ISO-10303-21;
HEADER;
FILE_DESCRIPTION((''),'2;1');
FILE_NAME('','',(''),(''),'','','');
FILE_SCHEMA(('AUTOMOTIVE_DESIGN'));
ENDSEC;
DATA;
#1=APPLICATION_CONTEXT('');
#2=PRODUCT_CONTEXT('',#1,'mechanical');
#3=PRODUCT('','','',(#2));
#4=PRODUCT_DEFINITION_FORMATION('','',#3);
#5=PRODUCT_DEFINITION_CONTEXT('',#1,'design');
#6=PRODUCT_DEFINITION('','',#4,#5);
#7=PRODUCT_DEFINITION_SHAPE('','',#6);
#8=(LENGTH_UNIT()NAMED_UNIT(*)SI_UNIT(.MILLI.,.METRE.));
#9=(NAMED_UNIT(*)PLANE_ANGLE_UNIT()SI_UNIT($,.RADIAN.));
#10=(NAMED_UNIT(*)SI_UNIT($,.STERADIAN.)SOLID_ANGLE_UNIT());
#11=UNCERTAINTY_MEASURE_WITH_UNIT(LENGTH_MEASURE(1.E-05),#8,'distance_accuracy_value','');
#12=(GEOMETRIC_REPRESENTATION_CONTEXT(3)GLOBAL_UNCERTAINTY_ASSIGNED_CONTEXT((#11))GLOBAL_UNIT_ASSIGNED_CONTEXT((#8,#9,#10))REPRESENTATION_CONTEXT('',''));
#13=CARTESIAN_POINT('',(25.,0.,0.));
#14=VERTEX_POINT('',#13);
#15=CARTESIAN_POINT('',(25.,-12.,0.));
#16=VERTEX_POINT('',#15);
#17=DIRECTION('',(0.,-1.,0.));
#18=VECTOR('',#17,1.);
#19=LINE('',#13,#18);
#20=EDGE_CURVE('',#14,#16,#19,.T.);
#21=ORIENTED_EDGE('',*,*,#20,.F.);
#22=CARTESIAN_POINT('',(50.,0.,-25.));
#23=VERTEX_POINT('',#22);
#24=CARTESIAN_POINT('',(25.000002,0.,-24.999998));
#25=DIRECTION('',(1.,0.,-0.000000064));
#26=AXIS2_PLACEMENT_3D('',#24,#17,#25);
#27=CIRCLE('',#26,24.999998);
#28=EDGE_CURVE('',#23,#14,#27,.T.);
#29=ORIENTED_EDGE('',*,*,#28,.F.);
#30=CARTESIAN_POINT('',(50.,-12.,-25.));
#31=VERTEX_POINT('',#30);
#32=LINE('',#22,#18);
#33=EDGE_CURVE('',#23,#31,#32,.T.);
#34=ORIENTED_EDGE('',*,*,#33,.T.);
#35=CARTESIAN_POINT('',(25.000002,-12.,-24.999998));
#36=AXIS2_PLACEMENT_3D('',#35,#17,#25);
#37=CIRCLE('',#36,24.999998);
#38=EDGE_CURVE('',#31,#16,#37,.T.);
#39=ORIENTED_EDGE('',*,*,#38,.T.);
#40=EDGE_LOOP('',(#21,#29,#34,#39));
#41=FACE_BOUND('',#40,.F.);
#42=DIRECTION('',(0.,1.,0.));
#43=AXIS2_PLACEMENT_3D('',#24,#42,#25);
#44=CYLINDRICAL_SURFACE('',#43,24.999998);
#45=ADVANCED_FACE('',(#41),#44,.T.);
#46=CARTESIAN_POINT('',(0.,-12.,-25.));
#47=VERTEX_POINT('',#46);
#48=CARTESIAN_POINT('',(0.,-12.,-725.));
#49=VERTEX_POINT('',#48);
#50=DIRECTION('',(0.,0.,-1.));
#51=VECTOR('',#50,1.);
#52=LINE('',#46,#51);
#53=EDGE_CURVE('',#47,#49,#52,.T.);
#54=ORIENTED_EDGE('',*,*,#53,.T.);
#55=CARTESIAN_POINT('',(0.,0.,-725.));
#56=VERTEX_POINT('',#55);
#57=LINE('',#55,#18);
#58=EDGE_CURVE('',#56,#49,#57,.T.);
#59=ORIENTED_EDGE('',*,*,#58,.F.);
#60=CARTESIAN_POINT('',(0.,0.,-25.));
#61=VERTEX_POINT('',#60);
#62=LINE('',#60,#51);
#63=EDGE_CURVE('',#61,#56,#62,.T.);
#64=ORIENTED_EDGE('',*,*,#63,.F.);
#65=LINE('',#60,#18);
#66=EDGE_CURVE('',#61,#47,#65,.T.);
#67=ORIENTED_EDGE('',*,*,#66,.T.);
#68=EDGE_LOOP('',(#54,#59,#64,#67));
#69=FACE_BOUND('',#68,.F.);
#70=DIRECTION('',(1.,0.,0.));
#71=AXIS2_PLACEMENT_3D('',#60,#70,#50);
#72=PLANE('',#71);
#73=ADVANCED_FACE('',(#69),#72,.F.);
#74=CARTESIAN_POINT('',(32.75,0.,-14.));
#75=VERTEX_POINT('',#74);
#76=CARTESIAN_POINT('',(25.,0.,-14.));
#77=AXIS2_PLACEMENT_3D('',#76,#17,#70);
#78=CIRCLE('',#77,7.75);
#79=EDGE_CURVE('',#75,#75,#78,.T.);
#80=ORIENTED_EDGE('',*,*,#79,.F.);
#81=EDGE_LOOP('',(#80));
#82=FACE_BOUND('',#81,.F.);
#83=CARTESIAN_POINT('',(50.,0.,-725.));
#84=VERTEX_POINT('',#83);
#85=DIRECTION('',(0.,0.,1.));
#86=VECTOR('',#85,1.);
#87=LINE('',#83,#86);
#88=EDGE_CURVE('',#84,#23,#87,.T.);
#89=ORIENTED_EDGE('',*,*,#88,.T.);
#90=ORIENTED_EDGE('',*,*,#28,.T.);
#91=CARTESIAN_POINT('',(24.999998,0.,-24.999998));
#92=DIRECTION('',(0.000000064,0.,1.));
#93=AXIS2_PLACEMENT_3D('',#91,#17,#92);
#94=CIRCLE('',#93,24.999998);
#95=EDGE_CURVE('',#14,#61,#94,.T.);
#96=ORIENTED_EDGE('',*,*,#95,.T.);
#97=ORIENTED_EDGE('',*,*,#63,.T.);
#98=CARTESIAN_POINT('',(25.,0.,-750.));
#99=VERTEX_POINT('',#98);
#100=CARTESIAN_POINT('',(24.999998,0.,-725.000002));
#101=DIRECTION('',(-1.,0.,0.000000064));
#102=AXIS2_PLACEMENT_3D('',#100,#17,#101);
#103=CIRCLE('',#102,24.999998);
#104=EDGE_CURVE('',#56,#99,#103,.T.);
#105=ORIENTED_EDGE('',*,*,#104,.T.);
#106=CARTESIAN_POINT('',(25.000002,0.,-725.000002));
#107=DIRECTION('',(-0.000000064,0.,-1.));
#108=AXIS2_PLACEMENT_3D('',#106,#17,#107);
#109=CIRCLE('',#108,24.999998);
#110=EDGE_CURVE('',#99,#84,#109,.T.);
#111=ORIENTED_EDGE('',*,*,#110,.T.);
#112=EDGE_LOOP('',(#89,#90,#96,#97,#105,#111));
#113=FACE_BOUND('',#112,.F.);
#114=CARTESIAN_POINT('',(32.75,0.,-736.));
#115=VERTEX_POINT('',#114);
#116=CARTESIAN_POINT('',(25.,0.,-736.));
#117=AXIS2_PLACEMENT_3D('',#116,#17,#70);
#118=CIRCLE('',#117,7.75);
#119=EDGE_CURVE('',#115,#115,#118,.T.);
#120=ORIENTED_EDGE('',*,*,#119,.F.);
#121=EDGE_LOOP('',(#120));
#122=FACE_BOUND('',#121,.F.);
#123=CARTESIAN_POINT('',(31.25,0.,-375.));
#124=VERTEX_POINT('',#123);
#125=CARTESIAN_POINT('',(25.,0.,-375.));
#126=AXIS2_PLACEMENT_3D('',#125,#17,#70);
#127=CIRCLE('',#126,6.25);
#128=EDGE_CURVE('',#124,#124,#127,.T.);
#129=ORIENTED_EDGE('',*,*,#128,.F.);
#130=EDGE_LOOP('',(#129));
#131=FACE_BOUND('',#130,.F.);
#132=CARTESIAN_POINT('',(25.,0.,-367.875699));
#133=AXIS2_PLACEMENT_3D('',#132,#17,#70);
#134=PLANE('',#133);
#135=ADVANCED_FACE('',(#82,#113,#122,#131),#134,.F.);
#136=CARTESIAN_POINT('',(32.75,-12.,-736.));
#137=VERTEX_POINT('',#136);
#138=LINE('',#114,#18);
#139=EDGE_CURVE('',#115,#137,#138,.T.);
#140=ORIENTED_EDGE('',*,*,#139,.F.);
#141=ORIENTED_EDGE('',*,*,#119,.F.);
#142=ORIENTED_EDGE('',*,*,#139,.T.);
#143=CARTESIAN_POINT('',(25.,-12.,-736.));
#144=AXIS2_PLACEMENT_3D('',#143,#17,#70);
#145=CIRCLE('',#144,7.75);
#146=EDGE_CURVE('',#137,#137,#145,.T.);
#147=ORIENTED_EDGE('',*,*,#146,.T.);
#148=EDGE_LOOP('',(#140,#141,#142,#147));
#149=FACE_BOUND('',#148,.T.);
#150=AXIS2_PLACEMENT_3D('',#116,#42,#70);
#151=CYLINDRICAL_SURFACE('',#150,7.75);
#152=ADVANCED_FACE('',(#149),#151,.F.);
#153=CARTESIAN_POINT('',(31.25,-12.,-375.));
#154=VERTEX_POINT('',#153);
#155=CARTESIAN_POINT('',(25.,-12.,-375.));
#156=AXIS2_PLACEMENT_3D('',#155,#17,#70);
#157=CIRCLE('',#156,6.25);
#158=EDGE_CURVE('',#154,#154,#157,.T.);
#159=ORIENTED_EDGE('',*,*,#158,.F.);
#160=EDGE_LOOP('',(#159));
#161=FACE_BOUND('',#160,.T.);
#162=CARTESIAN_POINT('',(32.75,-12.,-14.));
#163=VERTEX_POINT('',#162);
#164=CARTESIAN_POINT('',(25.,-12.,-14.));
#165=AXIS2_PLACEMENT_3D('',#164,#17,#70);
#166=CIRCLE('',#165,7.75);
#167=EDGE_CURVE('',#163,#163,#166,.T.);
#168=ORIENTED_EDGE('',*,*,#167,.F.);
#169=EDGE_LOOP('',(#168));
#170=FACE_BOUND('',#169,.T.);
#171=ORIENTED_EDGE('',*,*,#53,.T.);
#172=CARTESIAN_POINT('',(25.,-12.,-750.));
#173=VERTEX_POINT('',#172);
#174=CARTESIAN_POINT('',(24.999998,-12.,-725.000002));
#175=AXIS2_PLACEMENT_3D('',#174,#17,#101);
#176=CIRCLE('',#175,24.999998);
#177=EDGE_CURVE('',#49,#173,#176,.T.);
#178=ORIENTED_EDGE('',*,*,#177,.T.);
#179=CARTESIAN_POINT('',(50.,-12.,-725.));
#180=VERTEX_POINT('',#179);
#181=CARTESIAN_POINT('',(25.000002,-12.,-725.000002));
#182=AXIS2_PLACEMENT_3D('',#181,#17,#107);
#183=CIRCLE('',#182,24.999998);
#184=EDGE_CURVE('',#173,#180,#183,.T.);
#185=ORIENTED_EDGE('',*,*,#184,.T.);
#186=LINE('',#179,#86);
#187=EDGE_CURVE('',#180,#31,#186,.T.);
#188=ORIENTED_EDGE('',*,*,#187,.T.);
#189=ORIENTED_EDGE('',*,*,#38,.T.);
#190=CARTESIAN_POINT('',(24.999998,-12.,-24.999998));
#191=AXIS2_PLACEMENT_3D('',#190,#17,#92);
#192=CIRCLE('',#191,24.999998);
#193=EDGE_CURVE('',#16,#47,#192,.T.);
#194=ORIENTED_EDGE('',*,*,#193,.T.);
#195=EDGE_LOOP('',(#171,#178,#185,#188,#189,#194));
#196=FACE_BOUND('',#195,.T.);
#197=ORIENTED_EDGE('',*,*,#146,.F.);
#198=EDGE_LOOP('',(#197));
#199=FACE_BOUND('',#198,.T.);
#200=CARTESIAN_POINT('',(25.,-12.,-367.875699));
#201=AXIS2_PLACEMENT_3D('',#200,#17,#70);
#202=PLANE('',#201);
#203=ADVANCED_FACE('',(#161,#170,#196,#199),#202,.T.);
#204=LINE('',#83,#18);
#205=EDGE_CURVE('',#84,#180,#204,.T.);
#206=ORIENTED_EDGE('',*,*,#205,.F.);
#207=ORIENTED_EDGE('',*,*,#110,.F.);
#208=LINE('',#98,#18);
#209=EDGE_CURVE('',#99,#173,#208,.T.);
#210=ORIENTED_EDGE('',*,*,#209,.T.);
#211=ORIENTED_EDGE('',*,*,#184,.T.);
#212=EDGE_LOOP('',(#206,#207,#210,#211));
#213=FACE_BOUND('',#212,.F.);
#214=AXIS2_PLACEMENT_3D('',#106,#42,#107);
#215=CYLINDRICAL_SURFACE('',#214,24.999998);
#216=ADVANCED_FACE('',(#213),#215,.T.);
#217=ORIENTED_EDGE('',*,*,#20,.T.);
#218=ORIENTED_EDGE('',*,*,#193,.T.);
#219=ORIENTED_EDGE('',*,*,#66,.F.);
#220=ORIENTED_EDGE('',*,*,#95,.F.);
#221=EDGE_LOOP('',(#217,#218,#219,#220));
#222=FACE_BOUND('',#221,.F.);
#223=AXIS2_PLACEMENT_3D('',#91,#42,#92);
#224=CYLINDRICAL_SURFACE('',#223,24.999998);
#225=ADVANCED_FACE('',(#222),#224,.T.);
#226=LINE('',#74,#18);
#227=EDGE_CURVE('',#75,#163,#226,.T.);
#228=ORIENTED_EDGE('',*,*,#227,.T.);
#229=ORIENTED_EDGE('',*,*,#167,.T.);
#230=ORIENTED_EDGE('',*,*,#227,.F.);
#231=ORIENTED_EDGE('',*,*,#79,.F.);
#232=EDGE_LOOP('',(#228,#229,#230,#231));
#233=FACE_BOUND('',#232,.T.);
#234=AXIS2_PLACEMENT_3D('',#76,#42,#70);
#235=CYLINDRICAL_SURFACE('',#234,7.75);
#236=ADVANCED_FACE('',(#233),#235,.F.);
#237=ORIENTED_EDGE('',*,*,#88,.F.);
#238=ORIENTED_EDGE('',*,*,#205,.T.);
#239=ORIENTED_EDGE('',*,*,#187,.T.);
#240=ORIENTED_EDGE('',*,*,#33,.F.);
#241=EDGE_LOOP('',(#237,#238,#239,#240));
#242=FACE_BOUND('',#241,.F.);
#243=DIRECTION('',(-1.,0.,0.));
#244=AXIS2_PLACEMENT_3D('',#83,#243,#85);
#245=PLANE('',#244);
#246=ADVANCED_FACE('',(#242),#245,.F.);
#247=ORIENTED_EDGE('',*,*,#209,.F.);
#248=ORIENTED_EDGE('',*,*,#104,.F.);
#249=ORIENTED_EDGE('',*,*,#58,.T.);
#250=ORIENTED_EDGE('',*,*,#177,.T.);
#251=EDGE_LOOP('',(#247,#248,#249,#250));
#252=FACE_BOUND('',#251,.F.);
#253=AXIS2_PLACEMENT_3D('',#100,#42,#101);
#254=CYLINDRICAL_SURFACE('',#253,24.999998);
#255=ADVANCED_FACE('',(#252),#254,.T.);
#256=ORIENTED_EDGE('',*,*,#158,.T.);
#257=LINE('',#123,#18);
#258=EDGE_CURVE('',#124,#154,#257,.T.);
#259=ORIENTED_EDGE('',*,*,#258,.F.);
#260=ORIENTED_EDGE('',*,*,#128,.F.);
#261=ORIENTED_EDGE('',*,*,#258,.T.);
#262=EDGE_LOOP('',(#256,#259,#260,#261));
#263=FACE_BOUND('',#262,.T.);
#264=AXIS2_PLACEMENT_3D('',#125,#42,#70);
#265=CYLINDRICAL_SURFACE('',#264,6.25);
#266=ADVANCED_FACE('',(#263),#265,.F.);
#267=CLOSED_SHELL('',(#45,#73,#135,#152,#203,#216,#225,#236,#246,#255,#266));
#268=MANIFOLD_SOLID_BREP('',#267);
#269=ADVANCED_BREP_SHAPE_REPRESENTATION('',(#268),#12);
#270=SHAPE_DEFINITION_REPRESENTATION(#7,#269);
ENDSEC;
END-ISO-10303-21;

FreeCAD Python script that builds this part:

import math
import FreeCAD as App
import Part
import Sketcher

V = App.Vector

doc = App.newDocument("Part")
body = doc.addObject("PartDesign::Body", "Body")

# Sketch on XZ plane
sketch1 = doc.addObject("Sketcher::SketchObject", "Sketch")
body.addObject(sketch1)
sketch1.AttachmentSupport = (doc.XZ_Plane, [""])
sketch1.MapMode = "FlatFace"
sketch1.addGeometry(Part.LineSegment(V(0, -25, 0), V(0, -725, 0)), False)
sketch1.addGeometry(Part.ArcOfCircle(Part.Circle(V(25, -725, 0), V(0, 0, 1), 25), math.radians(180), math.radians(270)), False)
sketch1.addGeometry(Part.ArcOfCircle(Part.Circle(V(25, -725, 0), V(0, 0, 1), 25), math.radians(-90), math.radians(0)), False)
sketch1.addGeometry(Part.LineSegment(V(50, -725, 0), V(50, -25, 0)), False)
sketch1.addGeometry(Part.ArcOfCircle(Part.Circle(V(25, -25, 0), V(0, 0, 1), 25), math.radians(0), math.radians(90)), False)
sketch1.addGeometry(Part.ArcOfCircle(Part.Circle(V(25, -25, 0), V(0, 0, 1), 25), math.radians(90), math.radians(180)), False)
sketch1.addGeometry(Part.Circle(V(25, -736, 0), V(0, 0, 1), 8), False)
sketch1.addGeometry(Part.Circle(V(25, -375, 0), V(0, 0, 1), 6), False)
sketch1.addGeometry(Part.Circle(V(25, -14, 0), V(0, 0, 1), 8), False)
sketch1.addConstraint(Sketcher.Constraint("Tangent", 0, 2, 1, 1))
sketch1.addConstraint(Sketcher.Constraint("Tangent", 1, 2, 2, 1))
sketch1.addConstraint(Sketcher.Constraint("Tangent", 2, 2, 3, 1))
sketch1.addConstraint(Sketcher.Constraint("Tangent", 3, 2, 4, 1))
sketch1.addConstraint(Sketcher.Constraint("Tangent", 4, 2, 5, 1))
sketch1.addConstraint(Sketcher.Constraint("Tangent", 5, 2, 0, 1))
sketch1.addConstraint(Sketcher.Constraint("Vertical", 0))
sketch1.addConstraint(Sketcher.Constraint("Vertical", 3))
sketch1.addConstraint(Sketcher.Constraint("Equal", 1, 2))
sketch1.addConstraint(Sketcher.Constraint("Equal", 2, 4))
sketch1.addConstraint(Sketcher.Constraint("Equal", 6, 8))
sketch1.addConstraint(Sketcher.Constraint("PointOnObject", 0, 2, -2))
sketch1.addConstraint(Sketcher.Constraint("PointOnObject", 4, 2, -1))
sketch1.addConstraint(Sketcher.Constraint("Vertical", 5, 3, 6, 3))
sketch1.addConstraint(Sketcher.Constraint("Vertical", 6, 3, 7, 3))
sketch1.addConstraint(Sketcher.Constraint("Vertical", 7, 3, 8, 3))
sketch1.addConstraint(Sketcher.Constraint("Vertical", 8, 3, 1, 2))
sketch1.addConstraint(Sketcher.Constraint("Vertical", 1, 2, 4, 2))
sketch1.addConstraint(Sketcher.Constraint("Radius", 1, 24.999998))
sketch1.addConstraint(Sketcher.Constraint("Diameter", 6, 15.5))
sketch1.addConstraint(Sketcher.Constraint("Diameter", 7, 12.5))
sketch1.addConstraint(Sketcher.Constraint("DistanceY", 0, 2, 0, 1, 700.0))
sketch1.addConstraint(Sketcher.Constraint("DistanceY", 6, 3, -1, 1, 736.0))
sketch1.addConstraint(Sketcher.Constraint("DistanceY", 7, 3, -1, 1, 375.0))
sketch1.addConstraint(Sketcher.Constraint("DistanceY", 8, 3, -1, 1, 14.0))
pad1 = doc.addObject("PartDesign::Pad", "Pad")
body.addObject(pad1)
pad1.Profile = sketch1
pad1.Length = 12

doc.recompute()
